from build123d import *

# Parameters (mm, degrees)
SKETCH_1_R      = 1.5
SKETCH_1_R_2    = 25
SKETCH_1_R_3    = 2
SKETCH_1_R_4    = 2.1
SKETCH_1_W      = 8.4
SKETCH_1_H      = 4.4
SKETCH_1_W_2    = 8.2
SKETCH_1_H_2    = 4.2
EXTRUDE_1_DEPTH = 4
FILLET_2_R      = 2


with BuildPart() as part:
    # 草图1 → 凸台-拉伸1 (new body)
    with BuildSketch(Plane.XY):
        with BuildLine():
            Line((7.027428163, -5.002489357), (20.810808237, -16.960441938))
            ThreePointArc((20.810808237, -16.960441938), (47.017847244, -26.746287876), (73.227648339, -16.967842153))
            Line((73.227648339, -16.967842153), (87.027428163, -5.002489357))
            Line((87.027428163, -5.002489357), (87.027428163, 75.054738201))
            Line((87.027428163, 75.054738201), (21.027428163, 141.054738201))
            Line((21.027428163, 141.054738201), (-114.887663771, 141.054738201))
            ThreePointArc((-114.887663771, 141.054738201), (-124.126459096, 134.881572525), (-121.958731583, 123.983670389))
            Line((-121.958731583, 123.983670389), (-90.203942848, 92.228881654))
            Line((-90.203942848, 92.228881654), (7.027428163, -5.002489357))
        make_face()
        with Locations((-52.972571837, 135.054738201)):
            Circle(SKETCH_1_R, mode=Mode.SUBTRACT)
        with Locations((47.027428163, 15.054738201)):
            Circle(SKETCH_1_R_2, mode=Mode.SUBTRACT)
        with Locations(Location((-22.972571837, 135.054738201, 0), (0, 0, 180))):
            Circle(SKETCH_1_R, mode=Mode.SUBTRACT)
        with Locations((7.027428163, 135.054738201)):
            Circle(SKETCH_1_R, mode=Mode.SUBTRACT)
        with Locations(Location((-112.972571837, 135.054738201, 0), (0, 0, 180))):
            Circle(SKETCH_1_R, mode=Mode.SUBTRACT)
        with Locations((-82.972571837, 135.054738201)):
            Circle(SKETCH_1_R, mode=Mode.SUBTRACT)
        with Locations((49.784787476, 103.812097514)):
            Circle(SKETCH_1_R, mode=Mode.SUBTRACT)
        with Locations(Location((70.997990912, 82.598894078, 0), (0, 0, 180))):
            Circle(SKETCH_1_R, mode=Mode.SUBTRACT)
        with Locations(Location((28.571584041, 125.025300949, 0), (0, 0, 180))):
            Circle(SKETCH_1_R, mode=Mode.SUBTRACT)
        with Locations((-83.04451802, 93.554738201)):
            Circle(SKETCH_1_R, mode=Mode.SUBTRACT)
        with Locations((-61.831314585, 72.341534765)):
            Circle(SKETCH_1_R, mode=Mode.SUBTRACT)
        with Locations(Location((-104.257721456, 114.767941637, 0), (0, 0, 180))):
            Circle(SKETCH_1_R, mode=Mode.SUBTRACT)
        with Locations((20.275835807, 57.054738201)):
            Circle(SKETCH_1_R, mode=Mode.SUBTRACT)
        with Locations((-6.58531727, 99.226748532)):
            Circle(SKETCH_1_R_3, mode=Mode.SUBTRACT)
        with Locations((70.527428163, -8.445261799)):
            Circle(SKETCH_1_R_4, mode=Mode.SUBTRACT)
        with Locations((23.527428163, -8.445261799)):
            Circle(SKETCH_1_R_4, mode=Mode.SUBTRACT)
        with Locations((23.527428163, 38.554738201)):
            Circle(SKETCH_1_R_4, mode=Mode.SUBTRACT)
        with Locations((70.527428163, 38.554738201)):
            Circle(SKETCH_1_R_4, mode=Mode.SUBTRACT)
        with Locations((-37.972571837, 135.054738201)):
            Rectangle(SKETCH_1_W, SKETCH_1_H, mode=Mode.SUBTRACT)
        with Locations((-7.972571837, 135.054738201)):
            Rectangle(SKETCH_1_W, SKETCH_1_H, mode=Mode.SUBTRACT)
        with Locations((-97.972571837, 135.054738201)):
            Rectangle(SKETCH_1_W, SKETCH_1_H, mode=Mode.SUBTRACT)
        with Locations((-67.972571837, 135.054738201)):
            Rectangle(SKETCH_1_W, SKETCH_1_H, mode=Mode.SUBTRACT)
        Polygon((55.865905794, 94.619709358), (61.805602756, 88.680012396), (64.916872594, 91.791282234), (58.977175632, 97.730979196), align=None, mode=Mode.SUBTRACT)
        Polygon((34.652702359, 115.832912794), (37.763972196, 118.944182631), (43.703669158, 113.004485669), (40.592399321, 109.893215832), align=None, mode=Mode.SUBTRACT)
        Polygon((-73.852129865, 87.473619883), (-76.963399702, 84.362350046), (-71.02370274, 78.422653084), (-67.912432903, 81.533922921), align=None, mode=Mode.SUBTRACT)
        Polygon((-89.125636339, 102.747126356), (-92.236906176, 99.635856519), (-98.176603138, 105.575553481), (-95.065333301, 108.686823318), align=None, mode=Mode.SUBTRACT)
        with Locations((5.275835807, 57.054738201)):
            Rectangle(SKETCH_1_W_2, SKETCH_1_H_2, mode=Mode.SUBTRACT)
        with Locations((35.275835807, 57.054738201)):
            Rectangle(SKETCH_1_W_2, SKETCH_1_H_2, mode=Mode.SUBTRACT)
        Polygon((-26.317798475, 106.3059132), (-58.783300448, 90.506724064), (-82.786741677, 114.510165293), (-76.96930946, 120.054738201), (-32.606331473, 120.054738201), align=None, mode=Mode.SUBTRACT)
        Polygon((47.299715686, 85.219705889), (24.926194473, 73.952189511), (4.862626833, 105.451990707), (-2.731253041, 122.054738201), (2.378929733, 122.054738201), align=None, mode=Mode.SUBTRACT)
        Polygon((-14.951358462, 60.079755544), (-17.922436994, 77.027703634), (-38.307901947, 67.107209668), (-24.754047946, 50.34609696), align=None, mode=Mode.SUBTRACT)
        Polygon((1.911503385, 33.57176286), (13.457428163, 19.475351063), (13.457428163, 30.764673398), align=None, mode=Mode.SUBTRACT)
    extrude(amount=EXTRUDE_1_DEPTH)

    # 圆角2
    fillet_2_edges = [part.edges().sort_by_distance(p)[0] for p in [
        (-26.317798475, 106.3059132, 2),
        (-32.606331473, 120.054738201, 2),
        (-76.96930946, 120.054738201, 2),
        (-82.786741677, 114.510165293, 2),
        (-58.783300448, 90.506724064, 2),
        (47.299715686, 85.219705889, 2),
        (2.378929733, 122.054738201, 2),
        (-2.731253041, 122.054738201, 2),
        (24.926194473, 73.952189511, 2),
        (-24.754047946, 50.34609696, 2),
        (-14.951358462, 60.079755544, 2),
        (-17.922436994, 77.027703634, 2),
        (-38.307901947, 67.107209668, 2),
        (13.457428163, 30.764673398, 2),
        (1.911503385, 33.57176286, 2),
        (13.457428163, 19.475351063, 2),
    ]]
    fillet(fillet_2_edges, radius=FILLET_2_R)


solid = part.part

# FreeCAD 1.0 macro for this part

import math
import FreeCAD as App
import Part
import Sketcher
Q = App.Units.Quantity


def edges_at(feature, points):
    """Names of the edges that pass closest to the given points."""
    edges = feature.Shape.Edges
    near = lambda p: min(range(len(edges)), key=lambda i: edges[i].distToShape(Part.Vertex(*p))[0])
    return sorted({f"Edge{near(p) + 1}" for p in points})


def add_polygon(sketch, points):
    """Adds a closed chain of lines whose ends are joined by coincident constraints."""
    first, n = sketch.GeometryCount, len(points)
    for a, b in zip(points, points[1:] + points[:1]):
        sketch.addGeometry(Part.LineSegment(App.Vector(*a, 0), App.Vector(*b, 0)), False)
    for i in range(n):
        sketch.addConstraint(Sketcher.Constraint("Coincident", first + i, 2, first + (i + 1) % n, 1))

doc = App.newDocument("Part")
body = doc.addObject("PartDesign::Body", "Body")

sketch1 = body.newObject("Sketcher::SketchObject", "Sketch")
sketch1.AttachmentSupport = (doc.getObject("XY_Plane"), [""])
sketch1.MapMode = "FlatFace"
sketch1.addGeometry(Part.LineSegment(App.Vector(7, -5, 0), App.Vector(20.8, -17, 0)), False)
sketch1.addGeometry(Part.ArcOfCircle(Part.Circle(App.Vector(47, 13.3, 0), App.Vector(0, 0, 1), 40), math.radians(-131), math.radians(-49)), False)
sketch1.addGeometry(Part.LineSegment(App.Vector(73.2, -17, 0), App.Vector(87, -5, 0)), False)
sketch1.addGeometry(Part.LineSegment(App.Vector(87, -5, 0), App.Vector(87, 75.1, 0)), False)
sketch1.addGeometry(Part.LineSegment(App.Vector(87, 75.1, 0), App.Vector(21, 141.1, 0)), False)
sketch1.addGeometry(Part.LineSegment(App.Vector(21, 141.1, 0), App.Vector(-114.9, 141.1, 0)), False)
sketch1.addGeometry(Part.ArcOfCircle(Part.Circle(App.Vector(-114.9, 131.1, 0), App.Vector(0, 0, 1), 10), math.radians(90), math.radians(225)), False)
sketch1.addGeometry(Part.LineSegment(App.Vector(-122, 124, 0), App.Vector(7, -5, 0)), False)
sketch1.addGeometry(Part.Circle(App.Vector(23.5, -8.4, 0), App.Vector(0, 0, 1), 2.1), False)
sketch1.addGeometry(Part.Circle(App.Vector(70.5, -8.4, 0), App.Vector(0, 0, 1), 2.1), False)
sketch1.addGeometry(Part.Circle(App.Vector(47, 15.1, 0), App.Vector(0, 0, 1), 25), False)
add_polygon(sketch1, [(13.5, 19.5), (1.9, 33.6), (13.5, 30.8)])
sketch1.addGeometry(Part.Circle(App.Vector(23.5, 38.6, 0), App.Vector(0, 0, 1), 2.1), False)
add_polygon(sketch1, [(9.4, 55), (1.2, 55), (1.2, 59.2), (9.4, 59.2)])
sketch1.addGeometry(Part.Circle(App.Vector(20.3, 57.1, 0), App.Vector(0, 0, 1), 1.5), False)
sketch1.addGeometry(Part.Circle(App.Vector(70.5, 38.6, 0), App.Vector(0, 0, 1), 2.1), False)
add_polygon(sketch1, [(39.4, 55), (31.2, 55), (31.2, 59.2), (39.4, 59.2)])
add_polygon(sketch1, [(-77, 84.4), (-73.9, 87.5), (-67.9, 81.5), (-71, 78.4)])
sketch1.addGeometry(Part.Circle(App.Vector(-83, 93.6, 0), App.Vector(0, 0, 1), 1.5), False)
sketch1.addGeometry(Part.Circle(App.Vector(-61.8, 72.3, 0), App.Vector(0, 0, 1), 1.5), False)
add_polygon(sketch1, [(-17.9, 77), (-15, 60.1), (-24.8, 50.3), (-38.3, 67.1)])
add_polygon(sketch1, [(-95.1, 108.7), (-89.1, 102.7), (-92.2, 99.6), (-98.2, 105.6)])
sketch1.addGeometry(Part.Circle(App.Vector(-104.3, 114.8, 0), App.Vector(0, 0, 1), 1.5), False)
sketch1.addGeometry(Part.Circle(App.Vector(-113, 135.1, 0), App.Vector(0, 0, 1), 1.5), False)
add_polygon(sketch1, [(-93.8, 132.9), (-102.2, 132.9), (-102.2, 137.3), (-93.8, 137.3)])
sketch1.addGeometry(Part.Circle(App.Vector(-83, 135.1, 0), App.Vector(0, 0, 1), 1.5), False)
add_polygon(sketch1, [(-63.8, 132.9), (-72.2, 132.9), (-72.2, 137.3), (-63.8, 137.3)])
add_polygon(sketch1, [(-32.6, 120.1), (-26.3, 106.3), (-58.8, 90.5), (-82.8, 114.5), (-77, 120.1)])
sketch1.addGeometry(Part.Circle(App.Vector(-53, 135.1, 0), App.Vector(0, 0, 1), 1.5), False)
add_polygon(sketch1, [(-33.8, 132.9), (-42.2, 132.9), (-42.2, 137.3), (-33.8, 137.3)])
sketch1.addGeometry(Part.Circle(App.Vector(-23, 135.1, 0), App.Vector(0, 0, 1), 1.5), False)
sketch1.addGeometry(Part.Circle(App.Vector(-6.6, 99.2, 0), App.Vector(0, 0, 1), 2), False)
add_polygon(sketch1, [(2.4, 122.1), (47.3, 85.2), (24.9, 74), (4.9, 105.5), (-2.7, 122.1)])
sketch1.addGeometry(Part.Circle(App.Vector(71, 82.6, 0), App.Vector(0, 0, 1), 1.5), False)
add_polygon(sketch1, [(61.8, 88.7), (55.9, 94.6), (59, 97.7), (64.9, 91.8)])
add_polygon(sketch1, [(-3.8, 132.9), (-12.2, 132.9), (-12.2, 137.3), (-3.8, 137.3)])
sketch1.addGeometry(Part.Circle(App.Vector(7, 135.1, 0), App.Vector(0, 0, 1), 1.5), False)
add_polygon(sketch1, [(40.6, 109.9), (34.7, 115.8), (37.8, 118.9), (43.7, 113)])
sketch1.addGeometry(Part.Circle(App.Vector(49.8, 103.8, 0), App.Vector(0, 0, 1), 1.5), False)
sketch1.addGeometry(Part.Circle(App.Vector(28.6, 125, 0), App.Vector(0, 0, 1), 1.5), False)
sketch1.addConstraint([
    Sketcher.Constraint("Tangent", 0, 2, 1, 1),
    Sketcher.Constraint("Tangent", 1, 2, 2, 1),
    Sketcher.Constraint("Coincident", 2, 2, 3, 1),
    Sketcher.Constraint("Coincident", 3, 2, 4, 1),
    Sketcher.Constraint("Coincident", 4, 2, 5, 1),
    Sketcher.Constraint("Tangent", 5, 2, 6, 1),
    Sketcher.Constraint("Tangent", 6, 2, 7, 1),
    Sketcher.Constraint("Coincident", 7, 2, 0, 1),
    Sketcher.Constraint("Vertical", 3),
    Sketcher.Constraint("Horizontal", 5),
    Sketcher.Constraint("Vertical", 13),
    Sketcher.Constraint("Horizontal", 15),
    Sketcher.Constraint("Vertical", 16),
    Sketcher.Constraint("Horizontal", 17),
    Sketcher.Constraint("Vertical", 18),
    Sketcher.Constraint("Horizontal", 21),
    Sketcher.Constraint("Vertical", 22),
    Sketcher.Constraint("Horizontal", 23),
    Sketcher.Constraint("Vertical", 24),
    Sketcher.Constraint("Horizontal", 41),
    Sketcher.Constraint("Vertical", 42),
    Sketcher.Constraint("Horizontal", 43),
    Sketcher.Constraint("Vertical", 44),
    Sketcher.Constraint("Horizontal", 46),
    Sketcher.Constraint("Vertical", 47),
    Sketcher.Constraint("Horizontal", 48),
    Sketcher.Constraint("Vertical", 49),
    Sketcher.Constraint("Horizontal", 54),
    Sketcher.Constraint("Horizontal", 56),
    Sketcher.Constraint("Vertical", 57),
    Sketcher.Constraint("Horizontal", 58),
    Sketcher.Constraint("Vertical", 59),
    Sketcher.Constraint("Horizontal", 66),
    Sketcher.Constraint("Horizontal", 72),
    Sketcher.Constraint("Vertical", 73),
    Sketcher.Constraint("Horizontal", 74),
    Sketcher.Constraint("Vertical", 75),
    Sketcher.Constraint("Equal", 8, 9),
    Sketcher.Constraint("Equal", 9, 14),
    Sketcher.Constraint("Equal", 14, 20),
    Sketcher.Constraint("Equal", 19, 29),
    Sketcher.Constraint("Equal", 29, 30),
    Sketcher.Constraint("Equal", 30, 39),
    Sketcher.Constraint("Equal", 39, 40),
    Sketcher.Constraint("Equal", 40, 45),
    Sketcher.Constraint("Equal", 45, 55),
    Sketcher.Constraint("Equal", 55, 60),
    Sketcher.Constraint("Equal", 60, 67),
    Sketcher.Constraint("Equal", 67, 76),
    Sketcher.Constraint("Equal", 76, 81),
    Sketcher.Constraint("Equal", 81, 82),
    Sketcher.Constraint("Parallel", 4, 7),
    Sketcher.Constraint("Perpendicular", 7, 25),
    Sketcher.Constraint("Perpendicular", 25, 26),
    Sketcher.Constraint("Perpendicular", 26, 27),
    Sketcher.Constraint("Perpendicular", 27, 28),
    Sketcher.Constraint("Parallel", 28, 35),
    Sketcher.Constraint("Perpendicular", 35, 36),
    Sketcher.Constraint("Perpendicular", 36, 37),
    Sketcher.Constraint("Perpendicular", 37, 38),
    Sketcher.Constraint("Parallel", 34, 51),
    Sketcher.Constraint("Perpendicular", 38, 52),
    Sketcher.Constraint("Parallel", 50, 65),
    Sketcher.Constraint("Parallel", 52, 68),
    Sketcher.Constraint("Perpendicular", 68, 69),
    Sketcher.Constraint("Perpendicular", 69, 70),
    Sketcher.Constraint("Perpendicular", 70, 71),
    Sketcher.Constraint("Perpendicular", 71, 77),
    Sketcher.Constraint("Perpendicular", 77, 78),
    Sketcher.Constraint("Perpendicular", 78, 79),
    Sketcher.Constraint("Perpendicular", 79, 80),
    Sketcher.Constraint("Horizontal", 8, 3, 9, 3),
    Sketcher.Constraint("Horizontal", 14, 3, 20, 3),
    Sketcher.Constraint("Horizontal", 40, 3, 45, 3),
    Sketcher.Constraint("Horizontal", 45, 3, 55, 3),
    Sketcher.Constraint("Horizontal", 55, 3, 60, 3),
    Sketcher.Constraint("Horizontal", 60, 3, 76, 3),
    Sketcher.Constraint("Horizontal", 2, 2, 7, 2),
    Sketcher.Constraint("Horizontal", 18, 2, 21, 2),
    Sketcher.Constraint("Horizontal", 17, 2, 22, 2),
    Sketcher.Constraint("Horizontal", 44, 2, 46, 2),
    Sketcher.Constraint("Horizontal", 43, 2, 47, 2),
    Sketcher.Constraint("Horizontal", 49, 2, 56, 2),
    Sketcher.Constraint("Horizontal", 48, 2, 57, 2),
    Sketcher.Constraint("Horizontal", 59, 2, 72, 2),
    Sketcher.Constraint("Horizontal", 58, 2, 73, 2),
    Sketcher.Constraint("Vertical", 8, 3, 14, 3),
    Sketcher.Constraint("Vertical", 9, 3, 20, 3),
    Sketcher.Constraint("Vertical", 76, 3, 7, 2),
    Sketcher.Constraint("Equal", 17, 21),
    Sketcher.Constraint("Equal", 43, 46),
    Sketcher.Constraint("Equal", 48, 56),
    Sketcher.Constraint("Equal", 58, 72),
    Sketcher.Constraint("Equal", 28, 35),
    Sketcher.Constraint("Equal", 27, 36),
    Sketcher.Constraint("Equal", 37, 68),
    Sketcher.Constraint("Equal", 38, 69),
    Sketcher.Constraint("Equal", 70, 77),
    Sketcher.Constraint("Equal", 71, 78),
    Sketcher.Constraint("Diameter", 10, 50.0),
    Sketcher.Constraint("Diameter", 19, 3.0),
    Sketcher.Constraint("Diameter", 61, 4.0),
    Sketcher.Constraint("Radius", 1, 40.0),
    Sketcher.Constraint("Radius", 6, 10.0),
    Sketcher.Constraint("Diameter", 8, 4.2),
    Sketcher.Constraint("Angle", 4, Q("135 deg")),
    Sketcher.Constraint("DistanceX", 15, 2, 15, 1, 8.2),
    Sketcher.Constraint("DistanceX", 41, 2, 41, 1, 8.4),
    Sketcher.Constraint("DistanceY", 16, 1, 16, 2, 4.2),
    Sketcher.Constraint("DistanceY", 42, 1, 42, 2, 4.4),
    Sketcher.Constraint("Distance", 25, 4.4),
    Sketcher.Constraint("Distance", 26, 8.4),
    Sketcher.Constraint("Distance", 31, 17.206401),
    Sketcher.Constraint("Distance", 34, 22.671202),
    Sketcher.Constraint("DistanceX", 5, 2, 5, 1, 135.915092),
    Sketcher.Constraint("DistanceY", -1, 1, 82, 3, 125.025301),
    Sketcher.Constraint("DistanceX", 28, 2, -1, 1, 76.9634),
    Sketcher.Constraint("DistanceX", 33, 2, -1, 1, 38.307902),
    Sketcher.Constraint("DistanceX", 50, 2, -1, 1, 26.317798),
    Sketcher.Constraint("DistanceX", 51, 2, -1, 1, 58.7833),
    Sketcher.Constraint("DistanceX", -1, 1, 80, 2, 40.592399),
    Sketcher.Constraint("Distance", 0, 18.247581),
    Sketcher.Constraint("Distance", 2, 18.264818),
    Sketcher.Constraint("Distance", 11, 18.221339),
    Sketcher.Constraint("Distance", 12, 11.882261),
    Sketcher.Constraint("Distance", 32, 13.81437),
    Sketcher.Constraint("Distance", 62, 58.092139),
    Sketcher.Constraint("Distance", 64, 37.34681),
    Sketcher.Constraint("DistanceX", 54, 1, 54, 2, 44.362978),
    Sketcher.Constraint("DistanceX", 66, 1, 66, 2, 5.110183),
    Sketcher.Constraint("DistanceY", 3, 1, 3, 2, 80.057228),
    Sketcher.Constraint("DistanceY", 13, 2, 13, 1, 11.289322),
    Sketcher.Constraint("DistanceY", -1, 1, 1, 3, 13.253712),
    Sketcher.Constraint("DistanceY", -1, 1, 6, 3, 131.054738),
    Sketcher.Constraint("DistanceX", -1, 1, 8, 3, 23.527428),
    Sketcher.Constraint("DistanceY", 8, 3, -1, 1, 8.445262),
    Sketcher.Constraint("DistanceX", -1, 1, 9, 3, 70.527428),
    Sketcher.Constraint("DistanceX", -1, 1, 10, 3, 47.027428),
    Sketcher.Constraint("DistanceY", -1, 1, 10, 3, 15.054738),
    Sketcher.Constraint("DistanceY", -1, 1, 14, 3, 38.554738),
    Sketcher.Constraint("DistanceY", -1, 1, 19, 3, 57.054738),
    Sketcher.Constraint("DistanceX", 29, 3, -1, 1, 83.044518),
    Sketcher.Constraint("DistanceY", -1, 1, 29, 3, 93.554738),
    Sketcher.Constraint("DistanceX", 39, 3, -1, 1, 104.257721),
    Sketcher.Constraint("DistanceY", -1, 1, 39, 3, 114.767942),
    Sketcher.Constraint("DistanceX", 40, 3, -1, 1, 112.972572),
    Sketcher.Constraint("DistanceY", -1, 1, 40, 3, 135.054738),
    Sketcher.Constraint("DistanceX", 45, 3, -1, 1, 82.972572),
    Sketcher.Constraint("DistanceX", 55, 3, -1, 1, 52.972572),
    Sketcher.Constraint("DistanceX", 60, 3, -1, 1, 22.972572),
    Sketcher.Constraint("DistanceY", -1, 1, 61, 3, 99.226749),
    Sketcher.Constraint("DistanceX", -1, 1, 67, 3, 70.997991),
    Sketcher.Constraint("DistanceX", -1, 1, 76, 3, 7.027428),
    Sketcher.Constraint("DistanceX", -1, 1, 12, 2, 13.457428),
    Sketcher.Constraint("DistanceY", -1, 1, 13, 2, 19.475351),
    Sketcher.Constraint("DistanceY", -1, 1, 15, 2, 54.954738),
    Sketcher.Constraint("DistanceY", -1, 1, 25, 2, 87.47362),
    Sketcher.Constraint("DistanceX", 31, 2, -1, 1, 14.951358),
    Sketcher.Constraint("DistanceY", -1, 1, 33, 2, 67.10721),
    Sketcher.Constraint("DistanceX", 41, 2, -1, 1, 102.172572),
    Sketcher.Constraint("DistanceY", -1, 1, 41, 2, 132.854738),
    Sketcher.Constraint("DistanceX", 46, 2, -1, 1, 72.172572),
    Sketcher.Constraint("DistanceX", 52, 2, -1, 1, 82.786742),
    Sketcher.Constraint("DistanceX", 53, 2, -1, 1, 76.969309),
    Sketcher.Constraint("DistanceY", -1, 1, 53, 2, 120.054738),
    Sketcher.Constraint("DistanceX", 56, 2, -1, 1, 42.172572),
    Sketcher.Constraint("DistanceY", -1, 1, 63, 2, 73.95219),
    Sketcher.Constraint("DistanceY", -1, 1, 64, 2, 105.451991),
    Sketcher.Constraint("DistanceY", -1, 1, 65, 2, 122.054738),
    Sketcher.Constraint("DistanceX", -1, 1, 66, 2, 2.37893),
    Sketcher.Constraint("DistanceY", -1, 1, 68, 2, 94.619709),
    Sketcher.Constraint("DistanceX", 72, 2, -1, 1, 12.172572),
    Sketcher.Constraint("Distance", 33, 21.555553),
    Sketcher.Constraint("Distance", 50, 15.118725),
    Sketcher.Constraint("Distance", 51, 36.105722),
    Sketcher.Constraint("Distance", 63, 25.050576),
    Sketcher.Constraint("DistanceX", -1, 1, 19, 3, 20.275836),
    Sketcher.Constraint("DistanceX", 30, 3, -1, 1, 61.831315),
    Sketcher.Constraint("DistanceY", -1, 1, 30, 3, 72.341535),
    Sketcher.Constraint("DistanceX", 61, 3, -1, 1, 6.585317),
    Sketcher.Constraint("DistanceY", -1, 1, 67, 3, 82.598894),
    Sketcher.Constraint("DistanceX", -1, 1, 81, 3, 49.784787),
    Sketcher.Constraint("DistanceY", -1, 1, 81, 3, 103.812098),
    Sketcher.Constraint("DistanceX", -1, 1, 82, 3, 28.571584),
    Sketcher.Constraint("DistanceX", -1, 1, 15, 2, 1.175836),
    Sketcher.Constraint("DistanceX", -1, 1, 21, 2, 31.175836),
    Sketcher.Constraint("DistanceX", 35, 2, -1, 1, 89.125636),
    Sketcher.Constraint("DistanceY", -1, 1, 35, 2, 102.747126),
    Sketcher.Constraint("DistanceX", -1, 1, 68, 2, 55.865906),
    Sketcher.Constraint("DistanceY", -1, 1, 77, 2, 115.832913),
])
pad1 = body.newObject("PartDesign::Pad", "Pad")
pad1.Profile = sketch1
pad1.Length = 4
doc.recompute()

fillet = body.newObject("PartDesign::Fillet", "Fillet")
fillet.Base = (pad1, edges_at(pad1, [
    (-26.318, 106.306, 2),
    (-32.606, 120.055, 2),
    (-76.969, 120.055, 2),
    (-82.787, 114.51, 2),
    (-58.783, 90.507, 2),
    (47.3, 85.22, 2),
    (2.379, 122.055, 2),
    (-2.731, 122.055, 2),
    (24.926, 73.952, 2),
    (-24.754, 50.346, 2),
    (-14.951, 60.08, 2),
    (-17.922, 77.028, 2),
    (-38.308, 67.107, 2),
    (13.457, 30.765, 2),
    (1.912, 33.572, 2),
    (13.457, 19.475, 2),
]))
fillet.Radius = 2

doc.recompute()
